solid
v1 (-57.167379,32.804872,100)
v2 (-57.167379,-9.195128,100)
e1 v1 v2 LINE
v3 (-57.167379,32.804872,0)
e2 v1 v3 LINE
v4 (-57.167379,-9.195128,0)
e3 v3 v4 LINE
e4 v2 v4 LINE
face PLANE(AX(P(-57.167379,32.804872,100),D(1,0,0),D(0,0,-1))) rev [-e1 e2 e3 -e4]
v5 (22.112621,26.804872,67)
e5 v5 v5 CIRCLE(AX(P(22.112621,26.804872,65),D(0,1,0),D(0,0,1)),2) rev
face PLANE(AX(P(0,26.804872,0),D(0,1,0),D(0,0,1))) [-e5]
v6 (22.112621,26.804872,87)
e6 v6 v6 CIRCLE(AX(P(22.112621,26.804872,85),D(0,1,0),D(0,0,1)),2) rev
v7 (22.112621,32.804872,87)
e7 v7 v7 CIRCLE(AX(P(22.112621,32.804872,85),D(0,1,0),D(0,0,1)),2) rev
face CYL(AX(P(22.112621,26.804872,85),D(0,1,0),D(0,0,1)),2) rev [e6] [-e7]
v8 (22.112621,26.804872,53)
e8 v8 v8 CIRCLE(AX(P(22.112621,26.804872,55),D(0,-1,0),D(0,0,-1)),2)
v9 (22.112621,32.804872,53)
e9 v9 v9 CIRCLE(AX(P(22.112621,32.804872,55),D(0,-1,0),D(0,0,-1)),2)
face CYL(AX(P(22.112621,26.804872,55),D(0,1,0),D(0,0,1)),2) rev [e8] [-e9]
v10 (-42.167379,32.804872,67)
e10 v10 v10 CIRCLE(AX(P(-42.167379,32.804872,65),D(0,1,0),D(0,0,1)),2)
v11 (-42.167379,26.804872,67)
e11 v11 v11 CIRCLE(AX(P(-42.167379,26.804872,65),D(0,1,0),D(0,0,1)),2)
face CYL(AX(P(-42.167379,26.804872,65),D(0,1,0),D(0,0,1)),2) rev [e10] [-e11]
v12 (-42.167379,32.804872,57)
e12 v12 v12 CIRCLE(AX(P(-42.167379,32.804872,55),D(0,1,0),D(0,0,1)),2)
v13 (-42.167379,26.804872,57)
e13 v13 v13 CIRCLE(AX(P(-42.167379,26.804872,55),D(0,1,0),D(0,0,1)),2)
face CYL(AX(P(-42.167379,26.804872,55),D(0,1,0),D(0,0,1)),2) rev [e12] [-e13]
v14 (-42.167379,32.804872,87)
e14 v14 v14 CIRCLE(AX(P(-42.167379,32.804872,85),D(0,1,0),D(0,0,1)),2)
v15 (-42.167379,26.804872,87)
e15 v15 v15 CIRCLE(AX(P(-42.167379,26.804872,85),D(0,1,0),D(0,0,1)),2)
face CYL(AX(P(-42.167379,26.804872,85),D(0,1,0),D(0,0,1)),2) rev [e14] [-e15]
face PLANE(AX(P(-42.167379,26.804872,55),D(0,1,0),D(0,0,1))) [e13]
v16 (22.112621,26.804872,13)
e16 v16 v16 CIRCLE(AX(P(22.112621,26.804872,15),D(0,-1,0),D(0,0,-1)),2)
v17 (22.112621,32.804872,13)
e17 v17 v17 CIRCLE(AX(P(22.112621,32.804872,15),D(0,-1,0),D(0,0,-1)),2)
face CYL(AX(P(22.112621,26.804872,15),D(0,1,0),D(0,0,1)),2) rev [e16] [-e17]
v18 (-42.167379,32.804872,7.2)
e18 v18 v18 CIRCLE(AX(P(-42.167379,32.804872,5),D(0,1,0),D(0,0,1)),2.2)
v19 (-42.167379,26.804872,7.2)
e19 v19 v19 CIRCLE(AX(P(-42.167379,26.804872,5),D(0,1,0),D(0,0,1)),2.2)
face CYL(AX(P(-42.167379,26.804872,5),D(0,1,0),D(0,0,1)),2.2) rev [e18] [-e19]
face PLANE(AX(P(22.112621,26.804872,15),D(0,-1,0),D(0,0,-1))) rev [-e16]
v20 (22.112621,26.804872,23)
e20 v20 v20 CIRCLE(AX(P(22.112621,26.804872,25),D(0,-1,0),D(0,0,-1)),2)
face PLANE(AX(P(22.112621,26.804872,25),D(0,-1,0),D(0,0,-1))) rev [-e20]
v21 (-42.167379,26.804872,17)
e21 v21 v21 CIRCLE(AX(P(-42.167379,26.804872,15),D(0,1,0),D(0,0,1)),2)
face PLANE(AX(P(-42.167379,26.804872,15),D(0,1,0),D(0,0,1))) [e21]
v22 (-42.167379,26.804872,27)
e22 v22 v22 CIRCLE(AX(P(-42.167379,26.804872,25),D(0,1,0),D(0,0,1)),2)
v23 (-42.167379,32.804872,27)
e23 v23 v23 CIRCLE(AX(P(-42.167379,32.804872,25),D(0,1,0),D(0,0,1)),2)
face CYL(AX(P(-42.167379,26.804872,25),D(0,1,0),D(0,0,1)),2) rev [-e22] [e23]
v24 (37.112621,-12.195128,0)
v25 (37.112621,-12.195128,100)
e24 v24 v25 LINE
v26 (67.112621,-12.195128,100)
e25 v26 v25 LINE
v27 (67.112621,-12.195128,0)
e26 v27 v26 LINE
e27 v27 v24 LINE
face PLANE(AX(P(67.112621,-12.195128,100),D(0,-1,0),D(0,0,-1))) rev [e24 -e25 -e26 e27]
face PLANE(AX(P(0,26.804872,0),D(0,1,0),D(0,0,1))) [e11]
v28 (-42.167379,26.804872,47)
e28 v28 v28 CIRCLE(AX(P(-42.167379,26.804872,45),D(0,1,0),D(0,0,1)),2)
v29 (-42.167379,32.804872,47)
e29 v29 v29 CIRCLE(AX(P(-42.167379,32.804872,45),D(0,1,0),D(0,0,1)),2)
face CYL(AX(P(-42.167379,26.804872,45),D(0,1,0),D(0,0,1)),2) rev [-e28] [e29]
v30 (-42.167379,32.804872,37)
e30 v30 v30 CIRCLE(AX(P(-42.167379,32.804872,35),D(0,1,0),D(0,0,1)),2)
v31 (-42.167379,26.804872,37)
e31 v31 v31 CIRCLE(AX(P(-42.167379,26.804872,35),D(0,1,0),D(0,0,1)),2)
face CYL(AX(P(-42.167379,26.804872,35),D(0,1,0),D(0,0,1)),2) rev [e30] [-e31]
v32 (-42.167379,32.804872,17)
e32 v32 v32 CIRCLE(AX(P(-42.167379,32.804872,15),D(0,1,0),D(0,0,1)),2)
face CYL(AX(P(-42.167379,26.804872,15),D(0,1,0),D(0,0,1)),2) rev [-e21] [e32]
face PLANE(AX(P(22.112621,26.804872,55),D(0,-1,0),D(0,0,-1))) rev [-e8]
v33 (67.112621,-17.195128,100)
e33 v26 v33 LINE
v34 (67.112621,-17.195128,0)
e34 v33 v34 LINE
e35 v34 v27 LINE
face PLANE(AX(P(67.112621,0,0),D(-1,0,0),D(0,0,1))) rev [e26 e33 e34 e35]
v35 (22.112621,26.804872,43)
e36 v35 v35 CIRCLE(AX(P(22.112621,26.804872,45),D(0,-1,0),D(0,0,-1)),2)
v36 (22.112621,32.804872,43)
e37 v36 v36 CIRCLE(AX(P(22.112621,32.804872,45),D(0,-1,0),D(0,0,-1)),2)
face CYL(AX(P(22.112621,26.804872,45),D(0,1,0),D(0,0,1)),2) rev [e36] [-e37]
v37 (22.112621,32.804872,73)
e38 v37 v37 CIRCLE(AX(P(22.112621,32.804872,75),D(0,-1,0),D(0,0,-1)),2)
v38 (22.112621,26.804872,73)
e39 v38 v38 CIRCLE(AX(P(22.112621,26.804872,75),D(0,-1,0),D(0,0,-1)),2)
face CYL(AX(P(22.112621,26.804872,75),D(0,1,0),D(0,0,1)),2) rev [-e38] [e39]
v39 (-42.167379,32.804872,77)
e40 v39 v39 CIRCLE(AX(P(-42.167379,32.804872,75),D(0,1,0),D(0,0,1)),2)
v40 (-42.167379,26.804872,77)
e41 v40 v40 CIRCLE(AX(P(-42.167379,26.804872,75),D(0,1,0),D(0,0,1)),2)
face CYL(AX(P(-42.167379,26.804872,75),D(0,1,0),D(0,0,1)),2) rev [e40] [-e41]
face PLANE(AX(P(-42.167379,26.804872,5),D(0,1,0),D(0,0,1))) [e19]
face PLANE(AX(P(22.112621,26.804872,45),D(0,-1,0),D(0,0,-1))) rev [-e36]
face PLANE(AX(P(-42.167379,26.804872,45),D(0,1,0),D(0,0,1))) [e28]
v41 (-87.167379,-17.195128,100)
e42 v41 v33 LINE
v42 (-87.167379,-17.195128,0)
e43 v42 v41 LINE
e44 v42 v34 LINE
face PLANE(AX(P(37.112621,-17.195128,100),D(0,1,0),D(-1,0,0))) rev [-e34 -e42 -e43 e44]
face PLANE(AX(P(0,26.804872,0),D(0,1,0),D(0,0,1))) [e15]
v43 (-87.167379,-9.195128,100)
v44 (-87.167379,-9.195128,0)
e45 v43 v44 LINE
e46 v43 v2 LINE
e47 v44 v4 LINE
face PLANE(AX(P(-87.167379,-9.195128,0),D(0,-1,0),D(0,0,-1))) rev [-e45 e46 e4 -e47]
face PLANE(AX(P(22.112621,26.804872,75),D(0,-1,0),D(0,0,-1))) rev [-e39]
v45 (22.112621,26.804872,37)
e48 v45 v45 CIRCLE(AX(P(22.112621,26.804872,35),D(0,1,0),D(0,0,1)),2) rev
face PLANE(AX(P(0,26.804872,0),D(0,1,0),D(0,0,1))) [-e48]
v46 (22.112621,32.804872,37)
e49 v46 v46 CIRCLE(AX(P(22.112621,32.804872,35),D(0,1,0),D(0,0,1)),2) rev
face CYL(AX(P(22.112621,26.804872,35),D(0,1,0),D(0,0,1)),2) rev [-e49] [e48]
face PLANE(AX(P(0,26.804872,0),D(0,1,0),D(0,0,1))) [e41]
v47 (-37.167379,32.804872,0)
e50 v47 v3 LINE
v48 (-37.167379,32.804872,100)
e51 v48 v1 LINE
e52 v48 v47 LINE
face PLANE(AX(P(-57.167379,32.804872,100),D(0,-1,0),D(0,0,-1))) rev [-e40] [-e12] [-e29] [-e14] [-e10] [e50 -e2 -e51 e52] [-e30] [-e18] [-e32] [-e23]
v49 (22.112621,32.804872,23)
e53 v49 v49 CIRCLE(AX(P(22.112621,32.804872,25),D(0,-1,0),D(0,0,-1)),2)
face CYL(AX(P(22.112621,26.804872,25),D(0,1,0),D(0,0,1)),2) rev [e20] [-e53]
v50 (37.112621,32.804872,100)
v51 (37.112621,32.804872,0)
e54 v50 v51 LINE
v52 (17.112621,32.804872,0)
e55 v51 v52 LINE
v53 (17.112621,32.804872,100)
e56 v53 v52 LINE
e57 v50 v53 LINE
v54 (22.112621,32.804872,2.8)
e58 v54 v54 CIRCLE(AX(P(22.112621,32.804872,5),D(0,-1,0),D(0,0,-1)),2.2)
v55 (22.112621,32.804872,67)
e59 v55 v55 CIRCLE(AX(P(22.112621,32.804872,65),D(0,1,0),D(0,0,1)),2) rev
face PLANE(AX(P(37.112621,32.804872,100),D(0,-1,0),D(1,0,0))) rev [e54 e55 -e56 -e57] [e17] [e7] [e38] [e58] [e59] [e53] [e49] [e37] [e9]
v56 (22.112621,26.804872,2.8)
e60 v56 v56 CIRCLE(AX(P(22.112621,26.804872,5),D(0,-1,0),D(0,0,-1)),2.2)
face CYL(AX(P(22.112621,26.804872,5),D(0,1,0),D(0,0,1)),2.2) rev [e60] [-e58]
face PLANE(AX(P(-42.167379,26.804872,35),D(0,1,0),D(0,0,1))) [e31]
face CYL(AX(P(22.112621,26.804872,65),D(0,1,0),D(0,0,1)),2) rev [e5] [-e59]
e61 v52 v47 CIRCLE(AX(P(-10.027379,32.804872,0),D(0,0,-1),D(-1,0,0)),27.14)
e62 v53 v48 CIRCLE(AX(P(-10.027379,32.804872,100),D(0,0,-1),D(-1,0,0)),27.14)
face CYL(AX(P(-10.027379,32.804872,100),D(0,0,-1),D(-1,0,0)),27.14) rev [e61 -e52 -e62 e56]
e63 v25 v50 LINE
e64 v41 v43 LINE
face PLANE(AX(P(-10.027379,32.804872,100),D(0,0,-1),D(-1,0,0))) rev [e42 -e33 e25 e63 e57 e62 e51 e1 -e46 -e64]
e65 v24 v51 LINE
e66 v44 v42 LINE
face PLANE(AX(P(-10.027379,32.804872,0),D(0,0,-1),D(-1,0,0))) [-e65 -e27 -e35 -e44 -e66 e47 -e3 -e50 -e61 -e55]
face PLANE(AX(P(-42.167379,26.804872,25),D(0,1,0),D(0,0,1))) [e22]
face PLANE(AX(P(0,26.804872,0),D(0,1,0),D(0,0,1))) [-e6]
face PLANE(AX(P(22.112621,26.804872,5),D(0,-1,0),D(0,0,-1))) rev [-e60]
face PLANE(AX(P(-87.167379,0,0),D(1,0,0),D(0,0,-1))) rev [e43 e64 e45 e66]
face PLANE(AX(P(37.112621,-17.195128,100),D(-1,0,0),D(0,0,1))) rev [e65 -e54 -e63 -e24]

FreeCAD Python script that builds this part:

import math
import FreeCAD as App
import Part
import Sketcher

V = App.Vector

doc = App.newDocument("Part")
params = doc.addObject("Spreadsheet::Sheet", "Params")
for row, (alias, value) in enumerate([
    ("sketch1_width", "20 mm"),
    ("sketch1_height", "50 mm"),
    ("sketch1_radius", "27.14 mm"),
    ("pad1_length", "100 mm"),
    ("sketch2_diameter", "4 mm"),
    ("sketch2_diameter2", "4.4 mm"),
    ("pocket1_length", "6 mm"),
    ("sketch3_width", "8 mm"),
    ("sketch3_height", "100 mm"),
    ("pad2_length", "30 mm"),
    ("sketch4_width", "5 mm"),
    ("sketch4_height", "100 mm"),
    ("pad3_length", "30 mm"),
], start=1):
    params.set(f"A{row}", alias)
    params.set(f"B{row}", "=" + value)
    params.setAlias(f"B{row}", alias)

body = doc.addObject("PartDesign::Body", "Body")

# Sketch on XY plane
sketch1 = body.newObject("Sketcher::SketchObject", "Sketch")
sketch1.AttachmentSupport = (doc.getObject("XY_Plane"), [""])
sketch1.MapMode = "FlatFace"
sketch1.addGeometry([
    Part.LineSegment(V(-57.167379, 32.804872, 0), V(-57.167379, -17.195128, 0)),  # 0
    Part.LineSegment(V(-57.167379, -17.195128, 0), V(37.112621, -17.195128, 0)),  # 1
    Part.LineSegment(V(37.112621, -17.195128, 0), V(37.112621, 32.804872, 0)),  # 2
    Part.LineSegment(V(37.112621, 32.804872, 0), V(17.112621, 32.804872, 0)),  # 3
    Part.ArcOfCircle(Part.Circle(V(-10.027379, 32.804872, 0), V(0, 0, 1), 27.14), math.radians(180), math.radians(360)),  # 4
    Part.LineSegment(V(-37.167379, 32.804872, 0), V(-57.167379, 32.804872, 0)),  # 5
], False)
sketch1.addConstraint([
    Sketcher.Constraint("Coincident", 0, 2, 1, 1),
    Sketcher.Constraint("Coincident", 1, 2, 2, 1),
    Sketcher.Constraint("Coincident", 2, 2, 3, 1),
    Sketcher.Constraint("Coincident", 3, 2, 4, 2),
    Sketcher.Constraint("Coincident", 4, 1, 5, 1),
    Sketcher.Constraint("Coincident", 5, 2, 0, 1),
    Sketcher.Constraint("Vertical", 0),
    Sketcher.Constraint("Horizontal", 1),
    Sketcher.Constraint("Vertical", 2),
    Sketcher.Constraint("Horizontal", 3),
    Sketcher.Constraint("Horizontal", 5),
    Sketcher.Constraint("Horizontal", 4, 3, 2, 2),
    Sketcher.Constraint("Horizontal", 3, 2, 4, 1),
    Sketcher.Constraint("Equal", 3, 5),
    Sketcher.Constraint("DistanceX", 3, 2, 3, 1, 20.0),
    Sketcher.Constraint("DistanceY", 0, 2, 0, 1, 50.0),
    Sketcher.Constraint("Radius", 4, 27.14),
    Sketcher.Constraint("DistanceX", 4, 3, -1, 1, 10.027379),
    Sketcher.Constraint("DistanceY", -1, 1, 4, 3, 32.804872),
])
sketch1.setExpression("Constraints[14]", "Params.sketch1_width")
sketch1.setExpression("Constraints[15]", "Params.sketch1_height")
sketch1.setExpression("Constraints[16]", "Params.sketch1_radius")
pad1 = body.newObject("PartDesign::Pad", "Pad")
pad1.Profile = sketch1
pad1.setExpression("Length", "Params.pad1_length")

# Sketch on XZ plane
sketch2 = body.newObject("Sketcher::SketchObject", "Sketch001")
sketch2.AttachmentSupport = (doc.getObject("XZ_Plane"), [""])
sketch2.MapMode = "FlatFace"
sketch2.AttachmentOffset = App.Placement(V(0, 0, -32.804872), App.Rotation())
sketch2.addGeometry([
    Part.Circle(V(-42.167379, 5, 0), V(0, 0, 1), 2.2),  # 0
    Part.Circle(V(-42.167379, 15, 0), V(0, 0, 1), 2),  # 1
    Part.Circle(V(-42.167379, 25, 0), V(0, 0, 1), 2),  # 2
    Part.Circle(V(-42.167379, 35, 0), V(0, 0, 1), 2),  # 3
    Part.Circle(V(-42.167379, 45, 0), V(0, 0, 1), 2),  # 4
    Part.Circle(V(-42.167379, 55, 0), V(0, 0, 1), 2),  # 5
    Part.Circle(V(-42.167379, 65, 0), V(0, 0, 1), 2),  # 6
    Part.Circle(V(-42.167379, 75, 0), V(0, 0, 1), 2),  # 7
    Part.Circle(V(-42.167379, 85, 0), V(0, 0, 1), 2),  # 8
    Part.Circle(V(22.112621, 85, 0), V(0, 0, 1), 2),  # 9
    Part.Circle(V(22.112621, 75, 0), V(0, 0, 1), 2),  # 10
    Part.Circle(V(22.112621, 65, 0), V(0, 0, 1), 2),  # 11
    Part.Circle(V(22.112621, 55, 0), V(0, 0, 1), 2),  # 12
    Part.Circle(V(22.112621, 45, 0), V(0, 0, 1), 2),  # 13
    Part.Circle(V(22.112621, 35, 0), V(0, 0, 1), 2),  # 14
    Part.Circle(V(22.112621, 25, 0), V(0, 0, 1), 2),  # 15
    Part.Circle(V(22.112621, 15, 0), V(0, 0, 1), 2),  # 16
    Part.Circle(V(22.112621, 5, 0), V(0, 0, 1), 2.2),  # 17
], False)
sketch2.addConstraint([
    Sketcher.Constraint("Equal", 1, 2),
    Sketcher.Constraint("Equal", 2, 3),
    Sketcher.Constraint("Equal", 3, 4),
    Sketcher.Constraint("Equal", 4, 5),
    Sketcher.Constraint("Equal", 5, 6),
    Sketcher.Constraint("Equal", 6, 7),
    Sketcher.Constraint("Equal", 7, 8),
    Sketcher.Constraint("Equal", 8, 9),
    Sketcher.Constraint("Equal", 9, 10),
    Sketcher.Constraint("Equal", 10, 11),
    Sketcher.Constraint("Equal", 11, 12),
    Sketcher.Constraint("Equal", 12, 13),
    Sketcher.Constraint("Equal", 13, 14),
    Sketcher.Constraint("Equal", 14, 15),
    Sketcher.Constraint("Equal", 15, 16),
    Sketcher.Constraint("Equal", 0, 17),
    Sketcher.Constraint("Horizontal", 8, 3, 9, 3),
    Sketcher.Constraint("Horizontal", 7, 3, 10, 3),
    Sketcher.Constraint("Horizontal", 6, 3, 11, 3),
    Sketcher.Constraint("Horizontal", 5, 3, 12, 3),
    Sketcher.Constraint("Horizontal", 4, 3, 13, 3),
    Sketcher.Constraint("Horizontal", 3, 3, 14, 3),
    Sketcher.Constraint("Horizontal", 2, 3, 15, 3),
    Sketcher.Constraint("Horizontal", 1, 3, 16, 3),
    Sketcher.Constraint("Horizontal", 0, 3, 17, 3),
    Sketcher.Constraint("Vertical", 0, 3, 1, 3),
    Sketcher.Constraint("Vertical", 1, 3, 2, 3),
    Sketcher.Constraint("Vertical", 2, 3, 3, 3),
    Sketcher.Constraint("Vertical", 3, 3, 4, 3),
    Sketcher.Constraint("Vertical", 4, 3, 5, 3),
    Sketcher.Constraint("Vertical", 5, 3, 6, 3),
    Sketcher.Constraint("Vertical", 6, 3, 7, 3),
    Sketcher.Constraint("Vertical", 7, 3, 8, 3),
    Sketcher.Constraint("Vertical", 9, 3, 10, 3),
    Sketcher.Constraint("Vertical", 10, 3, 11, 3),
    Sketcher.Constraint("Vertical", 11, 3, 12, 3),
    Sketcher.Constraint("Vertical", 12, 3, 13, 3),
    Sketcher.Constraint("Vertical", 13, 3, 14, 3),
    Sketcher.Constraint("Vertical", 14, 3, 15, 3),
    Sketcher.Constraint("Vertical", 15, 3, 16, 3),
    Sketcher.Constraint("Vertical", 16, 3, 17, 3),
    Sketcher.Constraint("Diameter", 1, 4.0),
    Sketcher.Constraint("Diameter", 0, 4.4),
    Sketcher.Constraint("DistanceY", -1, 1, 0, 3, 5.0),
    Sketcher.Constraint("DistanceY", -1, 1, 1, 3, 15.0),
    Sketcher.Constraint("DistanceY", -1, 1, 2, 3, 25.0),
    Sketcher.Constraint("DistanceY", -1, 1, 3, 3, 35.0),
    Sketcher.Constraint("DistanceY", -1, 1, 4, 3, 45.0),
    Sketcher.Constraint("DistanceY", -1, 1, 5, 3, 55.0),
    Sketcher.Constraint("DistanceY", -1, 1, 6, 3, 65.0),
    Sketcher.Constraint("DistanceY", -1, 1, 7, 3, 75.0),
    Sketcher.Constraint("DistanceY", -1, 1, 8, 3, 85.0),
    Sketcher.Constraint("DistanceX", 8, 3, 9, 3, 64.28),
    Sketcher.Constraint("DistanceX", 0, 3, -1, 1, 42.167379),
])
sketch2.setExpression("Constraints[41]", "Params.sketch2_diameter")
sketch2.setExpression("Constraints[42]", "Params.sketch2_diameter2")
pocket1 = body.newObject("PartDesign::Pocket", "Pocket")
pocket1.Profile = sketch2
pocket1.setExpression("Length", "Params.pocket1_length")
pocket1.Reversed = True

# Sketch on YZ plane
sketch3 = body.newObject("Sketcher::SketchObject", "Sketch002")
sketch3.AttachmentSupport = (doc.getObject("YZ_Plane"), [""])
sketch3.MapMode = "FlatFace"
sketch3.AttachmentOffset = App.Placement(V(0, 0, -57.167379), App.Rotation())
sketch3.addGeometry([
    Part.LineSegment(V(-9.195128, 0, 0), V(-17.195128, 0, 0)),
    Part.LineSegment(V(-17.195128, 0, 0), V(-17.195128, 100, 0)),
    Part.LineSegment(V(-17.195128, 100, 0), V(-9.195128, 100, 0)),
    Part.LineSegment(V(-9.195128, 100, 0), V(-9.195128, 0, 0)),
], False)
sketch3.addConstraint([
    Sketcher.Constraint("Coincident", 0, 2, 1, 1),
    Sketcher.Constraint("Coincident", 1, 2, 2, 1),
    Sketcher.Constraint("Coincident", 2, 2, 3, 1),
    Sketcher.Constraint("Coincident", 3, 2, 0, 1),
    Sketcher.Constraint("Horizontal", 0),
    Sketcher.Constraint("Vertical", 1),
    Sketcher.Constraint("Horizontal", 2),
    Sketcher.Constraint("Vertical", 3),
    Sketcher.Constraint("PointOnObject", 0, 2, -1),
    Sketcher.Constraint("DistanceX", 0, 2, 0, 1, 8.0),
    Sketcher.Constraint("DistanceY", 1, 1, 1, 2, 100.0),
    Sketcher.Constraint("DistanceX", 0, 2, -1, 1, 17.195128),
])
sketch3.setExpression("Constraints[9]", "Params.sketch3_width")
sketch3.setExpression("Constraints[10]", "Params.sketch3_height")
pad2 = body.newObject("PartDesign::Pad", "Pad001")
pad2.Profile = sketch3
pad2.setExpression("Length", "Params.pad2_length")
pad2.Reversed = True

# Sketch on YZ plane
sketch4 = body.newObject("Sketcher::SketchObject", "Sketch003")
sketch4.AttachmentSupport = (doc.getObject("YZ_Plane"), [""])
sketch4.MapMode = "FlatFace"
sketch4.AttachmentOffset = App.Placement(V(0, 0, 37.112621), App.Rotation())
sketch4.addGeometry([
    Part.LineSegment(V(-12.195128, 100, 0), V(-17.195128, 100, 0)),
    Part.LineSegment(V(-17.195128, 100, 0), V(-17.195128, 0, 0)),
    Part.LineSegment(V(-17.195128, 0, 0), V(-12.195128, 0, 0)),
    Part.LineSegment(V(-12.195128, 0, 0), V(-12.195128, 100, 0)),
], False)
sketch4.addConstraint([
    Sketcher.Constraint("Coincident", 0, 2, 1, 1),
    Sketcher.Constraint("Coincident", 1, 2, 2, 1),
    Sketcher.Constraint("Coincident", 2, 2, 3, 1),
    Sketcher.Constraint("Coincident", 3, 2, 0, 1),
    Sketcher.Constraint("Horizontal", 0),
    Sketcher.Constraint("Vertical", 1),
    Sketcher.Constraint("Horizontal", 2),
    Sketcher.Constraint("Vertical", 3),
    Sketcher.Constraint("PointOnObject", 1, 2, -1),
    Sketcher.Constraint("DistanceX", 0, 2, 0, 1, 5.0),
    Sketcher.Constraint("DistanceY", 1, 2, 1, 1, 100.0),
    Sketcher.Constraint("DistanceX", 0, 2, -1, 1, 17.195128),
])
sketch4.setExpression("Constraints[9]", "Params.sketch4_width")
sketch4.setExpression("Constraints[10]", "Params.sketch4_height")
pad3 = body.newObject("PartDesign::Pad", "Pad002")
pad3.Profile = sketch4
pad3.setExpression("Length", "Params.pad3_length")

doc.recompute()
